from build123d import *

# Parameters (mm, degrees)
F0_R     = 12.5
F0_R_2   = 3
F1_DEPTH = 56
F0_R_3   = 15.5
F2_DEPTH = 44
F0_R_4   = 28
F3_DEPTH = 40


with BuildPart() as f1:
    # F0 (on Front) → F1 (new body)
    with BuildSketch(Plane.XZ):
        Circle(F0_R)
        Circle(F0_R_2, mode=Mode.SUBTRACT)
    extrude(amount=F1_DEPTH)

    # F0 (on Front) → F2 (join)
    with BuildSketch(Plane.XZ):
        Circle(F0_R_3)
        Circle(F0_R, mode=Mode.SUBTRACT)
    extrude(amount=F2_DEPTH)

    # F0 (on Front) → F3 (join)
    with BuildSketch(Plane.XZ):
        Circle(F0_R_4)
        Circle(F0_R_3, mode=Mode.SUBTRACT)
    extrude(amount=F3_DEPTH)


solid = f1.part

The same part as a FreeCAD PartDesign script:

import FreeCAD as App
import Part
import Sketcher

V = App.Vector
Q = App.Units.Quantity

doc = App.newDocument("Part")
body = doc.addObject("PartDesign::Body", "Body")

sketch1 = body.newObject("Sketcher::SketchObject", "Sketch")
sketch1.AttachmentSupport = (doc.getObject("XZ_Plane"), [""])
sketch1.MapMode = "FlatFace"
sketch1.addGeometry(Part.Circle(V(0, 0, 0), V(0, 0, 1), 12.5), False)
sketch1.addGeometry(Part.Circle(V(0, 0, 0), V(0, 0, 1), 3), False)
sketch1.addConstraint(Sketcher.Constraint("Coincident", 0, 3, -1, 1))
sketch1.addConstraint(Sketcher.Constraint("Coincident", 1, 3, -1, 1))
sketch1.addConstraint(Sketcher.Constraint("Diameter", 0, Q("25 mm")))
sketch1.addConstraint(Sketcher.Constraint("Diameter", 1, Q("6 mm")))
pad1 = body.newObject("PartDesign::Pad", "Pad")
pad1.Profile = sketch1
pad1.Length = 56

sketch2 = body.newObject("Sketcher::SketchObject", "Sketch001")
sketch2.AttachmentSupport = (doc.getObject("XZ_Plane"), [""])
sketch2.MapMode = "FlatFace"
sketch2.addGeometry(Part.Circle(V(0, 0, 0), V(0, 0, 1), 15.5), False)
sketch2.addGeometry(Part.Circle(V(0, 0, 0), V(0, 0, 1), 12.5), False)
sketch2.addConstraint(Sketcher.Constraint("Coincident", 0, 3, -1, 1))
sketch2.addConstraint(Sketcher.Constraint("Coincident", 1, 3, -1, 1))
sketch2.addConstraint(Sketcher.Constraint("Diameter", 0, Q("31 mm")))
sketch2.addConstraint(Sketcher.Constraint("Diameter", 1, Q("25 mm")))
pad2 = body.newObject("PartDesign::Pad", "Pad001")
pad2.Profile = sketch2
pad2.Length = 44

sketch3 = body.newObject("Sketcher::SketchObject", "Sketch002")
sketch3.AttachmentSupport = (doc.getObject("XZ_Plane"), [""])
sketch3.MapMode = "FlatFace"
sketch3.addGeometry(Part.Circle(V(0, 0, 0), V(0, 0, 1), 28), False)
sketch3.addGeometry(Part.Circle(V(0, 0, 0), V(0, 0, 1), 15.5), False)
sketch3.addConstraint(Sketcher.Constraint("Coincident", 0, 3, -1, 1))
sketch3.addConstraint(Sketcher.Constraint("Coincident", 1, 3, -1, 1))
sketch3.addConstraint(Sketcher.Constraint("Diameter", 0, Q("56 mm")))
sketch3.addConstraint(Sketcher.Constraint("Diameter", 1, Q("31 mm")))
pad3 = body.newObject("PartDesign::Pad", "Pad002")
pad3.Profile = sketch3
pad3.Length = 40

doc.recompute()
